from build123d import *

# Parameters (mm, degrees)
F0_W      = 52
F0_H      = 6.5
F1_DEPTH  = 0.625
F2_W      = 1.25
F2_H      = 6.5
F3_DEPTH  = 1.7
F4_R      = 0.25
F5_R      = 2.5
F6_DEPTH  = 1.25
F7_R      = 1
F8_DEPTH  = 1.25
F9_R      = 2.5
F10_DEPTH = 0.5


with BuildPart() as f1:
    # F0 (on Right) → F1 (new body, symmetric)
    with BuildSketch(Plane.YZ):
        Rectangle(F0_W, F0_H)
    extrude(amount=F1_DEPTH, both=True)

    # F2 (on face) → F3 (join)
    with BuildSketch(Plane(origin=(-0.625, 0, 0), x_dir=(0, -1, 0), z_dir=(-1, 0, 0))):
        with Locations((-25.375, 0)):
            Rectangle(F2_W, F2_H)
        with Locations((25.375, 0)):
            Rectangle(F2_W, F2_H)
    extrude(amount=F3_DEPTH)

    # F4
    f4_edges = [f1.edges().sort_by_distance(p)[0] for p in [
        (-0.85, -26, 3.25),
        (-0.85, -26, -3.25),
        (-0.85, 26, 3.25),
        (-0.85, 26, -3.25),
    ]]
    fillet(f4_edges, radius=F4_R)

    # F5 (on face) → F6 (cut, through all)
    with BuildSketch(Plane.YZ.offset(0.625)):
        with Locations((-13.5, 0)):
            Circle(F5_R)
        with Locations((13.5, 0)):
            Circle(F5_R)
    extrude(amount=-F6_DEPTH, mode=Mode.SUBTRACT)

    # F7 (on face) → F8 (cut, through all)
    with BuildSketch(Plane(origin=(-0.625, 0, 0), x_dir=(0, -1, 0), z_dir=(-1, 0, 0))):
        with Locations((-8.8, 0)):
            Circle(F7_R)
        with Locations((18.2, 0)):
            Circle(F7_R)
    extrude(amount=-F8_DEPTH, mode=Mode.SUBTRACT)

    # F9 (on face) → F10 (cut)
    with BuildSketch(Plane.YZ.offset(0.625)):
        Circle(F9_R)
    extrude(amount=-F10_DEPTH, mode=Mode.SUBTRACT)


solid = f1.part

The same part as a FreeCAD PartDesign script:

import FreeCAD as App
import Part
import Sketcher
from FreeCAD import Vector
Q = App.Units.Quantity


def edges_at(feature, points):
    """Names of the edges that pass closest to the given points."""
    edges = feature.Shape.Edges
    near = lambda p: min(range(len(edges)), key=lambda i: edges[i].distToShape(Part.Vertex(*p))[0])
    return sorted({f"Edge{near(p) + 1}" for p in points})


def add_polygon(sketch, points):
    """Adds a closed chain of lines whose ends are joined by coincident constraints."""
    first, n = sketch.GeometryCount, len(points)
    for a, b in zip(points, points[1:] + points[:1]):
        sketch.addGeometry(Part.LineSegment(App.Vector(*a, 0), App.Vector(*b, 0)), False)
    for i in range(n):
        sketch.addConstraint(Sketcher.Constraint("Coincident", first + i, 2, first + (i + 1) % n, 1))

doc = App.newDocument("Part")
body = doc.addObject("PartDesign::Body", "Body")

# Sketch on YZ plane
sketch1 = body.newObject("Sketcher::SketchObject", "Sketch")
sketch1.AttachmentSupport = (doc.getObject("YZ_Plane"), [""])
sketch1.MapMode = "FlatFace"
add_polygon(sketch1, [(-26, 3.25), (-26, -3.25), (26, -3.25), (26, 3.25)])  # lines 0-3
sketch1.addConstraint([
    Sketcher.Constraint("Vertical", 0),
    Sketcher.Constraint("Horizontal", 1),
    Sketcher.Constraint("Vertical", 2),
    Sketcher.Constraint("Horizontal", 3),
    Sketcher.Constraint("Symmetric", 0, 2, 2, 2, -1, 1),
    Sketcher.Constraint("DistanceX", 1, 1, 1, 2, Q("52 mm")),
    Sketcher.Constraint("DistanceY", 0, 2, 0, 1, Q("6.5 mm")),
])
pad1 = body.newObject("PartDesign::Pad", "Pad")
pad1.Profile = sketch1
pad1.Length = 1.25
pad1.Midplane = True

# Sketch on YZ plane
sketch2 = body.newObject("Sketcher::SketchObject", "Sketch001")
sketch2.AttachmentSupport = (doc.getObject("YZ_Plane"), [""])
sketch2.MapMode = "FlatFace"
sketch2.AttachmentOffset = App.Placement(Vector(0, 0, -0.625), App.Rotation())
add_polygon(sketch2, [(26, 3.25), (26, -3.25), (24.75, -3.25), (24.75, 3.25)])  # lines 0-3
add_polygon(sketch2, [(-24.75, 3.25), (-24.75, -3.25), (-26, -3.25), (-26, 3.25)])  # lines 4-7
sketch2.addConstraint([
    Sketcher.Constraint("Vertical", 0),
    Sketcher.Constraint("Horizontal", 1),
    Sketcher.Constraint("Vertical", 2),
    Sketcher.Constraint("Horizontal", 3),
    Sketcher.Constraint("Vertical", 4),
    Sketcher.Constraint("Horizontal", 5),
    Sketcher.Constraint("Vertical", 6),
    Sketcher.Constraint("Horizontal", 7),
    Sketcher.Constraint("Symmetric", 2, 2, 4, 2, -1, 1),
    Sketcher.Constraint("Symmetric", 0, 2, 6, 2, -1, 1),
    Sketcher.Constraint("Horizontal", 1, 2, 4, 2),
    Sketcher.Constraint("DistanceY", 0, 2, 0, 1, Q("6.5 mm")),
    Sketcher.Constraint("DistanceX", -1, 1, 0, 2, Q("26 mm")),
    Sketcher.Constraint("DistanceX", 1, 2, 1, 1, Q("1.25 mm")),
])
pad2 = body.newObject("PartDesign::Pad", "Pad001")
pad2.Profile = sketch2
pad2.Length = 1.7
pad2.Reversed = True
doc.recompute()

fillet = body.newObject("PartDesign::Fillet", "Fillet")
fillet.Base = (pad2, edges_at(pad2, [
    (-0.85, -26, 3.25),
    (-0.85, -26, -3.25),
    (-0.85, 26, 3.25),
    (-0.85, 26, -3.25),
]))
fillet.Radius = 0.25

# Sketch on YZ plane
sketch3 = body.newObject("Sketcher::SketchObject", "Sketch002")
sketch3.AttachmentSupport = (doc.getObject("YZ_Plane"), [""])
sketch3.MapMode = "FlatFace"
sketch3.AttachmentOffset = App.Placement(Vector(0, 0, 0.625), App.Rotation())
sketch3.addGeometry([
    Part.Circle(Vector(-13.5, 0, 0), Vector(0, 0, 1), 2.5),
    Part.Circle(Vector(13.5, 0, 0), Vector(0, 0, 1), 2.5),
], False)
sketch3.addConstraint([
    Sketcher.Constraint("Equal", 0, 1),
    Sketcher.Constraint("Symmetric", 0, 3, 1, 3, -1, 1),
    Sketcher.Constraint("PointOnObject", 0, 3, -1),
    Sketcher.Constraint("Diameter", 0, Q("5 mm")),
    Sketcher.Constraint("DistanceX", 0, 3, 1, 3, Q("27 mm")),
])
pocket1 = body.newObject("PartDesign::Pocket", "Pocket")
pocket1.Profile = sketch3
pocket1.Type = "ThroughAll"

# Sketch on YZ plane
sketch4 = body.newObject("Sketcher::SketchObject", "Sketch003")
sketch4.AttachmentSupport = (doc.getObject("YZ_Plane"), [""])
sketch4.MapMode = "FlatFace"
sketch4.AttachmentOffset = App.Placement(Vector(0, 0, -0.625), App.Rotation())
sketch4.addGeometry([
    Part.Circle(Vector(8.8, 0, 0), Vector(0, 0, 1), 1),
    Part.Circle(Vector(-18.2, 0, 0), Vector(0, 0, 1), 1),
], False)
sketch4.addConstraint([
    Sketcher.Constraint("Equal", 0, 1),
    Sketcher.Constraint("PointOnObject", 0, 3, -1),
    Sketcher.Constraint("PointOnObject", 1, 3, -1),
    Sketcher.Constraint("Diameter", 0, Q("2 mm")),
    Sketcher.Constraint("DistanceX", 1, 3, 0, 3, Q("27 mm")),
    Sketcher.Constraint("DistanceX", -1, 1, 0, 3, Q("8.8 mm")),
])
pocket2 = body.newObject("PartDesign::Pocket", "Pocket001")
pocket2.Profile = sketch4
pocket2.Type = "ThroughAll"
pocket2.Reversed = True

# Sketch on YZ plane
sketch5 = body.newObject("Sketcher::SketchObject", "Sketch004")
sketch5.AttachmentSupport = (doc.getObject("YZ_Plane"), [""])
sketch5.MapMode = "FlatFace"
sketch5.AttachmentOffset = App.Placement(Vector(0, 0, 0.625), App.Rotation())
sketch5.addGeometry(Part.Circle(Vector(0, 0, 0), Vector(0, 0, 1), 2.5), False)
sketch5.addConstraint([
    Sketcher.Constraint("Coincident", 0, 3, -1, 1),
    Sketcher.Constraint("Diameter", 0, Q("5 mm")),
])
pocket3 = body.newObject("PartDesign::Pocket", "Pocket002")
pocket3.Profile = sketch5
pocket3.Length = 0.5

doc.recompute()
